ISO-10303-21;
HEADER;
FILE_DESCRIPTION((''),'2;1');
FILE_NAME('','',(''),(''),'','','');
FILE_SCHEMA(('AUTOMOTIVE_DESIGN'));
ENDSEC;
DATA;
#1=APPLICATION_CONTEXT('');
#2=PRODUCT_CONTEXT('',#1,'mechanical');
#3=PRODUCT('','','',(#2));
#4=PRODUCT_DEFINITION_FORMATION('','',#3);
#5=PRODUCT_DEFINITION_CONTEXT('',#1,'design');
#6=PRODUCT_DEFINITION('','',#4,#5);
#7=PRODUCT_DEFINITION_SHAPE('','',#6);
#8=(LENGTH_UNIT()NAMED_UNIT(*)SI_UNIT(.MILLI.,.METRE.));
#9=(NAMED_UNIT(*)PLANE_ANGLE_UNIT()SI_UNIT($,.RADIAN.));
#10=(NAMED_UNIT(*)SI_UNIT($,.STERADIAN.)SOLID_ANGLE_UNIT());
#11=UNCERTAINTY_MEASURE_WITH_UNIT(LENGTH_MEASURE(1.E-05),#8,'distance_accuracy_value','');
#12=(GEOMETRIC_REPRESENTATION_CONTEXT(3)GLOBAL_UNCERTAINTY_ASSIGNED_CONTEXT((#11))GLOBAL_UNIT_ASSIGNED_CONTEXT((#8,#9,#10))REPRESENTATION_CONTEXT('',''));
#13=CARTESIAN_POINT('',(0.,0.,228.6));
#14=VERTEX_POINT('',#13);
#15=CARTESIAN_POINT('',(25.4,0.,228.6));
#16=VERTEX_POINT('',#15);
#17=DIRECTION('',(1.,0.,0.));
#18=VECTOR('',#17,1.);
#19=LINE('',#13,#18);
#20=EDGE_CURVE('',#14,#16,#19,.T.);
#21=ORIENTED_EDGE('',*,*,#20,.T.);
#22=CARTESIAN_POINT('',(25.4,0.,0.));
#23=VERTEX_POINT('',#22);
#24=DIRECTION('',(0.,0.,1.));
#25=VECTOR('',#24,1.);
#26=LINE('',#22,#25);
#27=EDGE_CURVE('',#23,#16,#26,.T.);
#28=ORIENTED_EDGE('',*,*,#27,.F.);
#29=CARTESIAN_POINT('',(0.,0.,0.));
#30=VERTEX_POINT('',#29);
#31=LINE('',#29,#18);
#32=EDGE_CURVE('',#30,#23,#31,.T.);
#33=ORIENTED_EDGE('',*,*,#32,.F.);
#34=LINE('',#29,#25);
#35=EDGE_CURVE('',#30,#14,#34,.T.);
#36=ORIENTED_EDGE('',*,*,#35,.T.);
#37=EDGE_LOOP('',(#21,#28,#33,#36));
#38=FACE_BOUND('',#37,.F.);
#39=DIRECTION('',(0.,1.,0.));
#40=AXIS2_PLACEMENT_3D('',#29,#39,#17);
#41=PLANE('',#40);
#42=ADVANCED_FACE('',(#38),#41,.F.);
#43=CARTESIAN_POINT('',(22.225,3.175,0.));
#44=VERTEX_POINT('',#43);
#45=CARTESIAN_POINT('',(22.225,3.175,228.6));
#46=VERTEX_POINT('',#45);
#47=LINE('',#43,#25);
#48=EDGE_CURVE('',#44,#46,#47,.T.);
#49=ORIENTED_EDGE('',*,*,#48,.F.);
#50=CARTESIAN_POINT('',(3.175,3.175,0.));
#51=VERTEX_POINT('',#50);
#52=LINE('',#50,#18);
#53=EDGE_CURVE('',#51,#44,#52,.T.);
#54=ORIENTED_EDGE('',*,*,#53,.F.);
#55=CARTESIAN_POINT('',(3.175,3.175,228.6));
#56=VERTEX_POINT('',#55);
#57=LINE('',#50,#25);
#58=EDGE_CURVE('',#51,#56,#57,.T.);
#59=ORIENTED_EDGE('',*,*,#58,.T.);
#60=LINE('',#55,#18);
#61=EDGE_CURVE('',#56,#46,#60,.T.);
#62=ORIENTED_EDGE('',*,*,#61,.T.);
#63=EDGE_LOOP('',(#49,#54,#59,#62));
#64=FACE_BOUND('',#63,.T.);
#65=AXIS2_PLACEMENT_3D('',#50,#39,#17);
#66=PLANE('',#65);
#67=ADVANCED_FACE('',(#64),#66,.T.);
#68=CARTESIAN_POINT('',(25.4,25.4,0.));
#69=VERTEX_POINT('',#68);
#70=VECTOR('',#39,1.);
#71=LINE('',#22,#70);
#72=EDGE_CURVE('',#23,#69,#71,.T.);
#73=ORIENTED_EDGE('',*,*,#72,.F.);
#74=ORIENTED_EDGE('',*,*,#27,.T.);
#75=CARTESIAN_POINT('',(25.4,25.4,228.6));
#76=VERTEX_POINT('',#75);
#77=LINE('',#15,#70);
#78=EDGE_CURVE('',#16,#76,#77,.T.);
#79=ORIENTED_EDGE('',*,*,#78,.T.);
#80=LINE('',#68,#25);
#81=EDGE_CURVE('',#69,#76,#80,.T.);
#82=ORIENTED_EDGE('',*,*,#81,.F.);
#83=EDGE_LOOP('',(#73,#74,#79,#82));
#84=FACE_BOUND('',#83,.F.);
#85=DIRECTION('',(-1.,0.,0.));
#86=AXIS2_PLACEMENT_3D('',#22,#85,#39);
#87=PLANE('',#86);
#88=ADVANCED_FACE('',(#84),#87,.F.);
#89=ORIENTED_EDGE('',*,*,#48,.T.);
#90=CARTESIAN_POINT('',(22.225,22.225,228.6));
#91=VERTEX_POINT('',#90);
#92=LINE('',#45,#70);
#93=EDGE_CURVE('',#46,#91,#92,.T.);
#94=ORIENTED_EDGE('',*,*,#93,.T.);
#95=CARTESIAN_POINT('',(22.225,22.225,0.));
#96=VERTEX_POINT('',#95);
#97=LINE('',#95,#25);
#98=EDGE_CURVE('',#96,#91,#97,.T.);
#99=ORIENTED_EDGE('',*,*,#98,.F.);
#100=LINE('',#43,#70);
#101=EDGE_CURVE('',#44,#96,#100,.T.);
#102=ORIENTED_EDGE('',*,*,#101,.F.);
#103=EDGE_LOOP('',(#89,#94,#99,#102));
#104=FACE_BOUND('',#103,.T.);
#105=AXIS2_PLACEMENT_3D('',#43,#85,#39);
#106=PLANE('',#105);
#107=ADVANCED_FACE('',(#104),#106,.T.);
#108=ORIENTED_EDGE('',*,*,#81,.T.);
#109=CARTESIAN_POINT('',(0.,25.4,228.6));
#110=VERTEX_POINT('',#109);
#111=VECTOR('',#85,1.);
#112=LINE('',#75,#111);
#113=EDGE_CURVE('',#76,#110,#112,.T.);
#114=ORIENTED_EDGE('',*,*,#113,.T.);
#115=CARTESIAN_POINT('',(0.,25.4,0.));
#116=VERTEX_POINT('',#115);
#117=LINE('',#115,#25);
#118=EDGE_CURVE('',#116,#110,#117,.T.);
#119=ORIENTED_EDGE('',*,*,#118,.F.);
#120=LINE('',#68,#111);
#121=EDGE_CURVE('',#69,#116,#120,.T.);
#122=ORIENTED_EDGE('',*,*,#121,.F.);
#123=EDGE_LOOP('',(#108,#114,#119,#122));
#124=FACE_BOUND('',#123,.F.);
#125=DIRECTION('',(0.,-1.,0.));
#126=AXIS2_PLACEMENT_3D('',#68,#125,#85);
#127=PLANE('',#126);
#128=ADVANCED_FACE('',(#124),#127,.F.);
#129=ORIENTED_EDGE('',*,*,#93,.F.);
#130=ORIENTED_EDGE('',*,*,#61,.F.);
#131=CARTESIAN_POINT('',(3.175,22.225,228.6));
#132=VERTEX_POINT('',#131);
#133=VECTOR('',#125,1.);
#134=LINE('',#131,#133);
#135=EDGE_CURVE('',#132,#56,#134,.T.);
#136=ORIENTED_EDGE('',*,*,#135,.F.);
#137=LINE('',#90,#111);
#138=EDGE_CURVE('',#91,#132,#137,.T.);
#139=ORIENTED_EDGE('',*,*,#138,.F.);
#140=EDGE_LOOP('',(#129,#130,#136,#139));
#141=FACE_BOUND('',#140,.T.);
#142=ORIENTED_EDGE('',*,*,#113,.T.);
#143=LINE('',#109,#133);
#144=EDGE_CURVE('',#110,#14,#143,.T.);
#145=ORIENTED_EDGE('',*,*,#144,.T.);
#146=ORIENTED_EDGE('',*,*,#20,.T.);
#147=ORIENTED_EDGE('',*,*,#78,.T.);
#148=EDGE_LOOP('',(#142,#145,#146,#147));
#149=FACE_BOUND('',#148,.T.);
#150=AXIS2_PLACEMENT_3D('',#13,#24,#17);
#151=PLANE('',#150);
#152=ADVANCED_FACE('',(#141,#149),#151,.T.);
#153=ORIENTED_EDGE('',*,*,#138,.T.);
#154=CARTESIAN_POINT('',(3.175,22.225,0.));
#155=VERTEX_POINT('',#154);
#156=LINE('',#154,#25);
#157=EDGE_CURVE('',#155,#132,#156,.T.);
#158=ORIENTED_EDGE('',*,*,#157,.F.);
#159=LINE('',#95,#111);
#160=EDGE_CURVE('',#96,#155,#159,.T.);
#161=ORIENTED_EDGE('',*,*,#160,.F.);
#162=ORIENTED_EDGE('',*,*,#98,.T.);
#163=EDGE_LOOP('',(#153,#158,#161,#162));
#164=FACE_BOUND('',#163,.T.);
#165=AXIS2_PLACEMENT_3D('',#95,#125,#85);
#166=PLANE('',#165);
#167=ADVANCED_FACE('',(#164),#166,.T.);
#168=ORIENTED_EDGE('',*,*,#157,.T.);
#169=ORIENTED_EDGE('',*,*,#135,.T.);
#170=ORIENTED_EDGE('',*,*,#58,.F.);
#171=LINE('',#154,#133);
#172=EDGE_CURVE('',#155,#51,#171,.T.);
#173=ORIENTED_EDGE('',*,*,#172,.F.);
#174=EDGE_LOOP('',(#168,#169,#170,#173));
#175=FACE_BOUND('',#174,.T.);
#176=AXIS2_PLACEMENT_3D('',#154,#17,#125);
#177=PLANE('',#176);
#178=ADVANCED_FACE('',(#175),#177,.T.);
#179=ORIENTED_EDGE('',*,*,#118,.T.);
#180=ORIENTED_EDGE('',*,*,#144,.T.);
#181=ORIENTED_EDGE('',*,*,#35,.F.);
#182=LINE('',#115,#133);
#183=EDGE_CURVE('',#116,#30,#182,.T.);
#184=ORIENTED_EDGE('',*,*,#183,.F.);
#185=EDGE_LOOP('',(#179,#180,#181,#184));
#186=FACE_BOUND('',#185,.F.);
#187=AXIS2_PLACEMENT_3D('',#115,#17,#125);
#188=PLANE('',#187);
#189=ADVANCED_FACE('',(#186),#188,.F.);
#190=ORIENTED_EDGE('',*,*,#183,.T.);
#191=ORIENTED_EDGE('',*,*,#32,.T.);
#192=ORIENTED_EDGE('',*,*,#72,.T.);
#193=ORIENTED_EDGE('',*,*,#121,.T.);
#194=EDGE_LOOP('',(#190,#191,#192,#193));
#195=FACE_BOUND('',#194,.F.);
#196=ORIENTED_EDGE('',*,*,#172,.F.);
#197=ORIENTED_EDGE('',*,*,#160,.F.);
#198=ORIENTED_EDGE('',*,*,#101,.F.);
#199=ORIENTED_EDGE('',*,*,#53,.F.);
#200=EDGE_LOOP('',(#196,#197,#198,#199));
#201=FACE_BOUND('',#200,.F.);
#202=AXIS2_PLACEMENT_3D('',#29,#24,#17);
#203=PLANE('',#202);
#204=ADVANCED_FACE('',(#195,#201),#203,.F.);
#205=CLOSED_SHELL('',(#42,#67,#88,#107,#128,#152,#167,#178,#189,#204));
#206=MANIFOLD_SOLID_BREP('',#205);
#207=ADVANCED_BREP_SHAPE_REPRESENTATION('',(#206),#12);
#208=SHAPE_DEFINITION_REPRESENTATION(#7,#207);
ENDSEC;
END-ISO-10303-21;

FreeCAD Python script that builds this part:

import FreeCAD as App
import Part
import Sketcher
Q = App.Units.Quantity


def add_polygon(sketch, points):
    """Adds a closed chain of lines whose ends are joined by coincident constraints."""
    first, n = sketch.GeometryCount, len(points)
    for a, b in zip(points, points[1:] + points[:1]):
        sketch.addGeometry(Part.LineSegment(App.Vector(*a, 0), App.Vector(*b, 0)), False)
    for i in range(n):
        sketch.addConstraint(Sketcher.Constraint("Coincident", first + i, 2, first + (i + 1) % n, 1))

doc = App.newDocument("Part")
body = doc.addObject("PartDesign::Body", "Body")

sketch1 = doc.addObject("Sketcher::SketchObject", "Sketch")
body.addObject(sketch1)
sketch1.AttachmentSupport = (doc.XY_Plane, [""])
sketch1.MapMode = "FlatFace"
add_polygon(sketch1, [(0, 25), (0, 0), (25, 0), (25, 25)])
add_polygon(sketch1, [(22, 3), (3, 3), (3, 22), (22, 22)])
sketch1.addConstraint(Sketcher.Constraint("Vertical", 0))
sketch1.addConstraint(Sketcher.Constraint("Horizontal", 1))
sketch1.addConstraint(Sketcher.Constraint("Vertical", 2))
sketch1.addConstraint(Sketcher.Constraint("Horizontal", 3))
sketch1.addConstraint(Sketcher.Constraint("Horizontal", 4))
sketch1.addConstraint(Sketcher.Constraint("Vertical", 5))
sketch1.addConstraint(Sketcher.Constraint("Horizontal", 6))
sketch1.addConstraint(Sketcher.Constraint("Vertical", 7))
sketch1.addConstraint(Sketcher.Constraint("Coincident", 0, 2, -1, 1))
sketch1.addConstraint(Sketcher.Constraint("Equal", 3, 0))
sketch1.addConstraint(Sketcher.Constraint("Equal", 6, 5))
sketch1.addConstraint(Sketcher.Constraint("DistanceX", 1, 1, 1, 2, Q("1 in")))
sketch1.addConstraint(Sketcher.Constraint("DistanceX", -1, 1, 4, 2, Q("0.125 in")))
sketch1.addConstraint(Sketcher.Constraint("DistanceY", -1, 1, 4, 2, Q("0.125 in")))
sketch1.addConstraint(Sketcher.Constraint("DistanceY", 5, 2, 3, 2, Q("0.125 in")))
pad1 = doc.addObject("PartDesign::Pad", "Pad")
body.addObject(pad1)
pad1.Profile = sketch1
pad1.Length = Q("9 in")

doc.recompute()
